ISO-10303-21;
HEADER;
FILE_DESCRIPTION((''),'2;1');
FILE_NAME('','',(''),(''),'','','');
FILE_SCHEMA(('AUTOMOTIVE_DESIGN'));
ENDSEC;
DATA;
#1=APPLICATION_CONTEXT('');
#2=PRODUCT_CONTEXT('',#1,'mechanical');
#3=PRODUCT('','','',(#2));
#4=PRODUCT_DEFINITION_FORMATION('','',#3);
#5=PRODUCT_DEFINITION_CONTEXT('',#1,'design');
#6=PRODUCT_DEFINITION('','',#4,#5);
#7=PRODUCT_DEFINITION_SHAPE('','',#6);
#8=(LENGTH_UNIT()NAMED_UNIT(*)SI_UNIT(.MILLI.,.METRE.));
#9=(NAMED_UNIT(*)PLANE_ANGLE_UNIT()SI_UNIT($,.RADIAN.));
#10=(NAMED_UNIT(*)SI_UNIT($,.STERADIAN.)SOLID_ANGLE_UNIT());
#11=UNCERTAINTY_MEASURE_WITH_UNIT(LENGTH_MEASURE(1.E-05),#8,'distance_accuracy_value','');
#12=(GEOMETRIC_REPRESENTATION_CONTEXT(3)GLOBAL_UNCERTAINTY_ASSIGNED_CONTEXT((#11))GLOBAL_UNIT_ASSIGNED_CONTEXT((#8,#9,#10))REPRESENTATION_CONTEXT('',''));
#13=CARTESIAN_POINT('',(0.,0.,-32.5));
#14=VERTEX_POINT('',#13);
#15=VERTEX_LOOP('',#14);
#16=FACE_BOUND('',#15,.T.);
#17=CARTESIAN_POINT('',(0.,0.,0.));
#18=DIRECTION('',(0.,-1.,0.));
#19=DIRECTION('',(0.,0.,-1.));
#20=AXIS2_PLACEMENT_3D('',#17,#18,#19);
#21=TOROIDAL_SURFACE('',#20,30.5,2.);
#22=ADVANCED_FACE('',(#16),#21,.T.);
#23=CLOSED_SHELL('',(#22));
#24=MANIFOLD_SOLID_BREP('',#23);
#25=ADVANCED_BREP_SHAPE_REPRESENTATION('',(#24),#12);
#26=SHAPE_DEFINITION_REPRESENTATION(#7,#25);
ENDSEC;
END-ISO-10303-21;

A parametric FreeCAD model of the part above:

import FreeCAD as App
import Part
import Sketcher
from FreeCAD import Vector

doc = App.newDocument("Part")
body = doc.addObject("PartDesign::Body", "Body")

sketch1 = body.newObject("Sketcher::SketchObject", "Sketch")
sketch1.AttachmentSupport = (doc.getObject("XY_Plane"), [""])
sketch1.MapMode = "FlatFace"
sketch1.addGeometry(Part.Circle(Vector(30.5, 0, 0), Vector(0, 0, 1), 2), False)
sketch1.addConstraint([
    Sketcher.Constraint("PointOnObject", 0, 3, -1),
    Sketcher.Constraint("Diameter", 0, 4.0),
    Sketcher.Constraint("DistanceX", -1, 1, 0, 3, 30.5),
])
revolution = body.newObject("PartDesign::Revolution", "Revolution")
revolution.Profile = sketch1
revolution.ReferenceAxis = (sketch1, ["V_Axis"])
revolution.Angle = 360

doc.recompute()
